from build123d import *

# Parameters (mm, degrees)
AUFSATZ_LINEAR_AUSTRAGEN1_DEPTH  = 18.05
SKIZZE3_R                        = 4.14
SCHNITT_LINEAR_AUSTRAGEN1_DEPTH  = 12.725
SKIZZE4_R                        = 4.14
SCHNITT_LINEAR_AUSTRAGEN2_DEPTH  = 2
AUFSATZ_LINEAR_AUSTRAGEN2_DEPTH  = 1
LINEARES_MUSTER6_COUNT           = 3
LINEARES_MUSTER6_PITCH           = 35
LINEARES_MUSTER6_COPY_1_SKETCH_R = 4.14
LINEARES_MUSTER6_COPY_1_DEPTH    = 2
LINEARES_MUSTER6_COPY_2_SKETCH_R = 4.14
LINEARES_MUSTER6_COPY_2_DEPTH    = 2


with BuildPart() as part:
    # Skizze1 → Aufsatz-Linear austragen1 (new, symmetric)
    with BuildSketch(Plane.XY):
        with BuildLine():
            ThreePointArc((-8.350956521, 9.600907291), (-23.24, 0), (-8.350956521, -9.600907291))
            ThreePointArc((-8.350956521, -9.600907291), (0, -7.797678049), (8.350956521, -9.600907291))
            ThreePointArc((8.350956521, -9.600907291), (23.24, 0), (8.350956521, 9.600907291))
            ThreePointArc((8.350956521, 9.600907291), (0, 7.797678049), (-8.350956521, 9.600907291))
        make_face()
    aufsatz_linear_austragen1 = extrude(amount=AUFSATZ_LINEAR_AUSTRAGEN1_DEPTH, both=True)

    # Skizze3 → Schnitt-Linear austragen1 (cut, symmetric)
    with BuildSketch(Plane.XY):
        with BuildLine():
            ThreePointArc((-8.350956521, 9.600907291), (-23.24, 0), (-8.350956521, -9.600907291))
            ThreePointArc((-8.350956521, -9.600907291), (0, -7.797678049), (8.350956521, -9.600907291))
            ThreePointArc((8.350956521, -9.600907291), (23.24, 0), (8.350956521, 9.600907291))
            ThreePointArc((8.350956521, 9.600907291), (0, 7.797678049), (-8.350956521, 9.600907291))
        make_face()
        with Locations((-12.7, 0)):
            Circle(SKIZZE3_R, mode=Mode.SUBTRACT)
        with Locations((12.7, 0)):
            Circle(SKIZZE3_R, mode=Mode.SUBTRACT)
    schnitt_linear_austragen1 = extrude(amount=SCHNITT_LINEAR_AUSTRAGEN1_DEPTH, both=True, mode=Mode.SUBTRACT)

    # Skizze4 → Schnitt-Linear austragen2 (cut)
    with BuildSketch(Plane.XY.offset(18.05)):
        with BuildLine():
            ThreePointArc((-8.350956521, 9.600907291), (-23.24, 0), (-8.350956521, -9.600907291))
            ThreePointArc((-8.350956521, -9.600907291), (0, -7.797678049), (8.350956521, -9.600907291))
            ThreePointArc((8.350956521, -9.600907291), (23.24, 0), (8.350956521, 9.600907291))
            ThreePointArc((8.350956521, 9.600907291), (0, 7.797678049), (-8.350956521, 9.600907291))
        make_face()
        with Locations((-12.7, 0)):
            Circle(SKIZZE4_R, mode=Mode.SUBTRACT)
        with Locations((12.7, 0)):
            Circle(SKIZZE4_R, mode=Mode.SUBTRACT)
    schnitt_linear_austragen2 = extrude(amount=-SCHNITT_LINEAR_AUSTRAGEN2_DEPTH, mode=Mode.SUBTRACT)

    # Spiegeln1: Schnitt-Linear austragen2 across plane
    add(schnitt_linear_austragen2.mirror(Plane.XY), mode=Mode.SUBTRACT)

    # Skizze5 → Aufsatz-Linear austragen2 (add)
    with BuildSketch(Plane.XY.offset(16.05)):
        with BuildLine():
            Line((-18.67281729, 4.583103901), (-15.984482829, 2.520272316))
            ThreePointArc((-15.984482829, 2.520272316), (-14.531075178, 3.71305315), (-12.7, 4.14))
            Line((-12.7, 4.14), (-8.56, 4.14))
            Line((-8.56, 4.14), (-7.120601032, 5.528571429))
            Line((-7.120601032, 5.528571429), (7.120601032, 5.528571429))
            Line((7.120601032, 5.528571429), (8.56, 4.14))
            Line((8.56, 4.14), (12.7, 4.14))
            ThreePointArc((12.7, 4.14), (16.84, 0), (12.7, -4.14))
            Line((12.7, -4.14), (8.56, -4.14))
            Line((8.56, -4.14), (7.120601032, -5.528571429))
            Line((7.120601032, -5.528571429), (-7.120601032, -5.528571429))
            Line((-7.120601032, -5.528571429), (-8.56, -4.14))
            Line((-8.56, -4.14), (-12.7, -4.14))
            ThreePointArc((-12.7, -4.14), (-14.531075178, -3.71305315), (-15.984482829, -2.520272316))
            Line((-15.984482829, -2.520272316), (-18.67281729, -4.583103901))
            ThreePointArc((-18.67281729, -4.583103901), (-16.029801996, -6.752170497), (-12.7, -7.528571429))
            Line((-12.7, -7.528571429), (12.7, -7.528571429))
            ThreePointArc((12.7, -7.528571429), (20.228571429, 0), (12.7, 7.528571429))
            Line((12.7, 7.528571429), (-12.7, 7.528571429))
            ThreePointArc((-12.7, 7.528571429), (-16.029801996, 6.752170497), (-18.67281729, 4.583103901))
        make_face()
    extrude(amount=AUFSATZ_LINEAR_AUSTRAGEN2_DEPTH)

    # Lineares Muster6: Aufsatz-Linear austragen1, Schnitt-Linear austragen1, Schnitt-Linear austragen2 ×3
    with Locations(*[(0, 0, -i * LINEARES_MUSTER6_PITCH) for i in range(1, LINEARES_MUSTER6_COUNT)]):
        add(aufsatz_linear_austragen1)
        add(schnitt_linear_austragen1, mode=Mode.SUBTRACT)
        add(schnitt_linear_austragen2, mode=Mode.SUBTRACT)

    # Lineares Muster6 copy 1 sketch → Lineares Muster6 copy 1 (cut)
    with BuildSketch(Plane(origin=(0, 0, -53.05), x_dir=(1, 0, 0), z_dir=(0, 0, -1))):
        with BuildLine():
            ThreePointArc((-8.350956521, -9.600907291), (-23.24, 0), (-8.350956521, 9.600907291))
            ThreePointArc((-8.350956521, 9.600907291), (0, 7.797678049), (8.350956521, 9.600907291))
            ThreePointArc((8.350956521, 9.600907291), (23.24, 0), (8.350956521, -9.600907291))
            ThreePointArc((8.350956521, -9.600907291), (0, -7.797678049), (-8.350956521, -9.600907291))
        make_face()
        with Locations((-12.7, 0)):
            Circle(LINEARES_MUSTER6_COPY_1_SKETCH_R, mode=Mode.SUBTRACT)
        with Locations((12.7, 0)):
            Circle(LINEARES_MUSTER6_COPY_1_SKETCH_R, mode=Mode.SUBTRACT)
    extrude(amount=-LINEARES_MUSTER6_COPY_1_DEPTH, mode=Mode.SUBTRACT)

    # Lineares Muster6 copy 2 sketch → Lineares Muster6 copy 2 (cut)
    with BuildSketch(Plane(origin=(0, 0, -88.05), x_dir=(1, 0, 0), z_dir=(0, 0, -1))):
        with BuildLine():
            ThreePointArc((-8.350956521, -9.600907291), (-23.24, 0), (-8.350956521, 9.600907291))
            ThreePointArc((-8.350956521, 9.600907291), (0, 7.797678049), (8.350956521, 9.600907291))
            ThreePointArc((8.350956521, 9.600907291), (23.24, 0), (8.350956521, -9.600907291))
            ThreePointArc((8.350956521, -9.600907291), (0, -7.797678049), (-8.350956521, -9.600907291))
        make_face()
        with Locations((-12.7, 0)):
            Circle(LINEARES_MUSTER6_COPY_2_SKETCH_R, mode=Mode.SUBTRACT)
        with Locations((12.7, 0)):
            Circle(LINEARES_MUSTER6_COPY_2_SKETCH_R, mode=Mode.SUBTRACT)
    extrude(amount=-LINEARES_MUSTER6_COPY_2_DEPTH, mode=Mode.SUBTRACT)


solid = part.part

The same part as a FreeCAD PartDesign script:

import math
import FreeCAD as App
import Part
import Sketcher

V = App.Vector
Q = App.Units.Quantity

doc = App.newDocument("Part")
body = doc.addObject("PartDesign::Body", "Body")

# Sketch on XY plane
sketch1 = doc.addObject("Sketcher::SketchObject", "Sketch")
body.addObject(sketch1)
sketch1.AttachmentSupport = (doc.XY_Plane, [""])
sketch1.MapMode = "FlatFace"
sketch1.addGeometry(Part.ArcOfCircle(Part.Circle(V(-12.7, 0, 0), V(0, 0, 1), 10.54), math.radians(65.630303), math.radians(294.369697)), False)
sketch1.addGeometry(Part.ArcOfCircle(Part.Circle(V(0, -28.0364, 0), V(0, 0, 1), 20.238722), math.radians(65.630303), math.radians(114.369697)), False)
sketch1.addGeometry(Part.ArcOfCircle(Part.Circle(V(12.7, 0, 0), V(0, 0, 1), 10.54), math.radians(-114.369697), math.radians(114.369697)), False)
sketch1.addGeometry(Part.ArcOfCircle(Part.Circle(V(0, 28.0364, 0), V(0, 0, 1), 20.238722), math.radians(-114.369697), math.radians(-65.630303)), False)
sketch1.addConstraint(Sketcher.Constraint("Tangent", 0, 2, 1, 2))
sketch1.addConstraint(Sketcher.Constraint("Tangent", 1, 1, 2, 1))
sketch1.addConstraint(Sketcher.Constraint("Tangent", 2, 2, 3, 2))
sketch1.addConstraint(Sketcher.Constraint("Tangent", 3, 1, 0, 1))
sketch1.addConstraint(Sketcher.Constraint("Equal", 0, 2))
sketch1.addConstraint(Sketcher.Constraint("Equal", 1, 3))
sketch1.addConstraint(Sketcher.Constraint("Symmetric", 0, 3, 2, 3, -1, 1))
sketch1.addConstraint(Sketcher.Constraint("PointOnObject", 0, 3, -1))
sketch1.addConstraint(Sketcher.Constraint("Radius", 0, Q("10.54 mm")))
sketch1.addConstraint(Sketcher.Constraint("DistanceX", 0, 3, -1, 1, Q("12.7 mm")))
sketch1.addConstraint(Sketcher.Constraint("Radius", 1, Q("20.238722 mm")))
pad1 = doc.addObject("PartDesign::Pad", "Pad")
body.addObject(pad1)
pad1.Profile = sketch1
pad1.Length = 36.1
pad1.Midplane = True

# Sketch on XY plane
sketch2 = doc.addObject("Sketcher::SketchObject", "Sketch001")
body.addObject(sketch2)
sketch2.AttachmentSupport = (doc.XY_Plane, [""])
sketch2.MapMode = "FlatFace"
sketch2.addGeometry(Part.ArcOfCircle(Part.Circle(V(-12.7, 0, 0), V(0, 0, 1), 10.54), math.radians(65.630303), math.radians(294.369697)), False)
sketch2.addGeometry(Part.ArcOfCircle(Part.Circle(V(0, -28.0364, 0), V(0, 0, 1), 20.238722), math.radians(65.630303), math.radians(114.369697)), False)
sketch2.addGeometry(Part.ArcOfCircle(Part.Circle(V(12.7, 0, 0), V(0, 0, 1), 10.54), math.radians(-114.369697), math.radians(114.369697)), False)
sketch2.addGeometry(Part.ArcOfCircle(Part.Circle(V(0, 28.0364, 0), V(0, 0, 1), 20.238722), math.radians(-114.369697), math.radians(-65.630303)), False)
sketch2.addGeometry(Part.Circle(V(-12.7, 0, 0), V(0, 0, 1), 4.14), False)
sketch2.addGeometry(Part.Circle(V(12.7, 0, 0), V(0, 0, 1), 4.14), False)
sketch2.addConstraint(Sketcher.Constraint("Tangent", 0, 2, 1, 2))
sketch2.addConstraint(Sketcher.Constraint("Tangent", 1, 1, 2, 1))
sketch2.addConstraint(Sketcher.Constraint("Tangent", 2, 2, 3, 2))
sketch2.addConstraint(Sketcher.Constraint("Tangent", 3, 1, 0, 1))
sketch2.addConstraint(Sketcher.Constraint("Coincident", 4, 3, 0, 3))
sketch2.addConstraint(Sketcher.Constraint("Coincident", 5, 3, 2, 3))
sketch2.addConstraint(Sketcher.Constraint("Equal", 0, 2))
sketch2.addConstraint(Sketcher.Constraint("Equal", 1, 3))
sketch2.addConstraint(Sketcher.Constraint("Equal", 4, 5))
sketch2.addConstraint(Sketcher.Constraint("Symmetric", 0, 3, 2, 3, -1, 1))
sketch2.addConstraint(Sketcher.Constraint("PointOnObject", 0, 3, -1))
sketch2.addConstraint(Sketcher.Constraint("Diameter", 4, Q("8.28 mm")))
sketch2.addConstraint(Sketcher.Constraint("Radius", 0, Q("10.54 mm")))
sketch2.addConstraint(Sketcher.Constraint("DistanceX", 0, 3, -1, 1, Q("12.7 mm")))
sketch2.addConstraint(Sketcher.Constraint("Radius", 1, Q("20.238722 mm")))
pocket1 = doc.addObject("PartDesign::Pocket", "Pocket")
body.addObject(pocket1)
pocket1.Profile = sketch2
pocket1.Length = 25.45
pocket1.Midplane = True

# Sketch on XY plane
sketch3 = doc.addObject("Sketcher::SketchObject", "Sketch002")
body.addObject(sketch3)
sketch3.AttachmentSupport = (doc.XY_Plane, [""])
sketch3.MapMode = "FlatFace"
sketch3.AttachmentOffset = App.Placement(V(0, 0, 18.05), App.Rotation())
sketch3.addGeometry(Part.ArcOfCircle(Part.Circle(V(-12.7, 0, 0), V(0, 0, 1), 10.54), math.radians(65.630303), math.radians(294.369697)), False)
sketch3.addGeometry(Part.ArcOfCircle(Part.Circle(V(0, -28.0364, 0), V(0, 0, 1), 20.238722), math.radians(65.630303), math.radians(114.369697)), False)
sketch3.addGeometry(Part.ArcOfCircle(Part.Circle(V(12.7, 0, 0), V(0, 0, 1), 10.54), math.radians(-114.369697), math.radians(114.369697)), False)
sketch3.addGeometry(Part.ArcOfCircle(Part.Circle(V(0, 28.0364, 0), V(0, 0, 1), 20.238722), math.radians(-114.369697), math.radians(-65.630303)), False)
sketch3.addGeometry(Part.Circle(V(-12.7, 0, 0), V(0, 0, 1), 4.14), False)
sketch3.addGeometry(Part.Circle(V(12.7, 0, 0), V(0, 0, 1), 4.14), False)
sketch3.addConstraint(Sketcher.Constraint("Tangent", 0, 2, 1, 2))
sketch3.addConstraint(Sketcher.Constraint("Tangent", 1, 1, 2, 1))
sketch3.addConstraint(Sketcher.Constraint("Tangent", 2, 2, 3, 2))
sketch3.addConstraint(Sketcher.Constraint("Tangent", 3, 1, 0, 1))
sketch3.addConstraint(Sketcher.Constraint("Coincident", 4, 3, 0, 3))
sketch3.addConstraint(Sketcher.Constraint("Coincident", 5, 3, 2, 3))
sketch3.addConstraint(Sketcher.Constraint("Equal", 0, 2))
sketch3.addConstraint(Sketcher.Constraint("Equal", 1, 3))
sketch3.addConstraint(Sketcher.Constraint("Equal", 4, 5))
sketch3.addConstraint(Sketcher.Constraint("Symmetric", 0, 3, 2, 3, -1, 1))
sketch3.addConstraint(Sketcher.Constraint("PointOnObject", 0, 3, -1))
sketch3.addConstraint(Sketcher.Constraint("Diameter", 4, Q("8.28 mm")))
sketch3.addConstraint(Sketcher.Constraint("Radius", 0, Q("10.54 mm")))
sketch3.addConstraint(Sketcher.Constraint("DistanceX", 0, 3, -1, 1, Q("12.7 mm")))
sketch3.addConstraint(Sketcher.Constraint("Radius", 1, Q("20.238722 mm")))
pocket2 = doc.addObject("PartDesign::Pocket", "Pocket001")
body.addObject(pocket2)
pocket2.Profile = sketch3
pocket2.Length = 2
doc.recompute()

mirrored = doc.addObject("PartDesign::Mirrored", "Mirrored")
body.addObject(mirrored)
mirrored.Originals = [pocket2]
mirrored.MirrorPlane = (doc.XY_Plane, [""])
body.Tip = mirrored

# Sketch on XY plane
sketch4 = doc.addObject("Sketcher::SketchObject", "Sketch003")
body.addObject(sketch4)
sketch4.AttachmentSupport = (doc.XY_Plane, [""])
sketch4.MapMode = "FlatFace"
sketch4.AttachmentOffset = App.Placement(V(0, 0, 16.05), App.Rotation())
sketch4.addGeometry(Part.LineSegment(V(-18.672817, 4.583104, 0), V(-15.984483, 2.520272, 0)), False)
sketch4.addGeometry(Part.ArcOfCircle(Part.Circle(V(-12.7, 0, 0), V(0, 0, 1), 4.14), math.radians(90), math.radians(142.5)), False)
sketch4.addGeometry(Part.LineSegment(V(-12.7, 4.14, 0), V(-8.56, 4.14, 0)), False)
sketch4.addGeometry(Part.LineSegment(V(-8.56, 4.14, 0), V(-7.120601, 5.528571, 0)), False)
sketch4.addGeometry(Part.LineSegment(V(-7.120601, 5.528571, 0), V(7.120601, 5.528571, 0)), False)
sketch4.addGeometry(Part.LineSegment(V(7.120601, 5.528571, 0), V(8.56, 4.14, 0)), False)
sketch4.addGeometry(Part.LineSegment(V(8.56, 4.14, 0), V(12.7, 4.14, 0)), False)
sketch4.addGeometry(Part.ArcOfCircle(Part.Circle(V(12.7, 0, 0), V(0, 0, 1), 4.14), math.radians(-90), math.radians(90)), False)
sketch4.addGeometry(Part.LineSegment(V(12.7, -4.14, 0), V(8.56, -4.14, 0)), False)
sketch4.addGeometry(Part.LineSegment(V(8.56, -4.14, 0), V(7.120601, -5.528571, 0)), False)
sketch4.addGeometry(Part.LineSegment(V(7.120601, -5.528571, 0), V(-7.120601, -5.528571, 0)), False)
sketch4.addGeometry(Part.LineSegment(V(-7.120601, -5.528571, 0), V(-8.56, -4.14, 0)), False)
sketch4.addGeometry(Part.LineSegment(V(-8.56, -4.14, 0), V(-12.7, -4.14, 0)), False)
sketch4.addGeometry(Part.ArcOfCircle(Part.Circle(V(-12.7, 0, 0), V(0, 0, 1), 4.14), math.radians(-142.5), math.radians(-90)), False)
sketch4.addGeometry(Part.LineSegment(V(-15.984483, -2.520272, 0), V(-18.672817, -4.583104, 0)), False)
sketch4.addGeometry(Part.ArcOfCircle(Part.Circle(V(-12.7, 0, 0), V(0, 0, 1), 7.528571), math.radians(-142.5), math.radians(-90)), False)
sketch4.addGeometry(Part.LineSegment(V(-12.7, -7.528571, 0), V(12.7, -7.528571, 0)), False)
sketch4.addGeometry(Part.ArcOfCircle(Part.Circle(V(12.7, 0, 0), V(0, 0, 1), 7.528571), math.radians(-90), math.radians(90)), False)
sketch4.addGeometry(Part.LineSegment(V(12.7, 7.528571, 0), V(-12.7, 7.528571, 0)), False)
sketch4.addGeometry(Part.ArcOfCircle(Part.Circle(V(-12.7, 0, 0), V(0, 0, 1), 7.528571), math.radians(90), math.radians(142.5)), False)
sketch4.addConstraint(Sketcher.Constraint("Coincident", 0, 2, 1, 2))
sketch4.addConstraint(Sketcher.Constraint("Tangent", 1, 1, 2, 1))
sketch4.addConstraint(Sketcher.Constraint("Coincident", 2, 2, 3, 1))
sketch4.addConstraint(Sketcher.Constraint("Coincident", 3, 2, 4, 1))
sketch4.addConstraint(Sketcher.Constraint("Coincident", 4, 2, 5, 1))
sketch4.addConstraint(Sketcher.Constraint("Coincident", 5, 2, 6, 1))
sketch4.addConstraint(Sketcher.Constraint("Tangent", 6, 2, 7, 2))
sketch4.addConstraint(Sketcher.Constraint("Tangent", 7, 1, 8, 1))
sketch4.addConstraint(Sketcher.Constraint("Coincident", 8, 2, 9, 1))
sketch4.addConstraint(Sketcher.Constraint("Coincident", 9, 2, 10, 1))
sketch4.addConstraint(Sketcher.Constraint("Coincident", 10, 2, 11, 1))
sketch4.addConstraint(Sketcher.Constraint("Coincident", 11, 2, 12, 1))
sketch4.addConstraint(Sketcher.Constraint("Tangent", 12, 2, 13, 2))
sketch4.addConstraint(Sketcher.Constraint("Coincident", 13, 1, 14, 1))
sketch4.addConstraint(Sketcher.Constraint("Coincident", 14, 2, 15, 1))
sketch4.addConstraint(Sketcher.Constraint("Tangent", 15, 2, 16, 1))
sketch4.addConstraint(Sketcher.Constraint("Tangent", 16, 2, 17, 1))
sketch4.addConstraint(Sketcher.Constraint("Tangent", 17, 2, 18, 1))
sketch4.addConstraint(Sketcher.Constraint("Tangent", 18, 2, 19, 1))
sketch4.addConstraint(Sketcher.Constraint("Coincident", 19, 2, 0, 1))
sketch4.addConstraint(Sketcher.Constraint("Horizontal", 2))
sketch4.addConstraint(Sketcher.Constraint("Horizontal", 4))
sketch4.addConstraint(Sketcher.Constraint("Horizontal", 6))
sketch4.addConstraint(Sketcher.Constraint("Horizontal", 8))
sketch4.addConstraint(Sketcher.Constraint("Horizontal", 10))
sketch4.addConstraint(Sketcher.Constraint("Horizontal", 12))
sketch4.addConstraint(Sketcher.Constraint("Horizontal", 16))
sketch4.addConstraint(Sketcher.Constraint("Horizontal", 18))
sketch4.addConstraint(Sketcher.Constraint("Coincident", 13, 3, 1, 3))
sketch4.addConstraint(Sketcher.Constraint("Coincident", 15, 3, 1, 3))
sketch4.addConstraint(Sketcher.Constraint("Coincident", 17, 3, 7, 3))
sketch4.addConstraint(Sketcher.Constraint("Coincident", 19, 3, 1, 3))
sketch4.addConstraint(Sketcher.Constraint("Equal", 1, 7))
sketch4.addConstraint(Sketcher.Constraint("Equal", 7, 13))
sketch4.addConstraint(Sketcher.Constraint("Equal", 15, 17))
sketch4.addConstraint(Sketcher.Constraint("Symmetric", 1, 3, 7, 3, -1, 1))
sketch4.addConstraint(Sketcher.Constraint("Symmetric", 3, 2, 9, 2, -1, 1))
sketch4.addConstraint(Sketcher.Constraint("Parallel", 3, 9))
sketch4.addConstraint(Sketcher.Constraint("Parallel", 5, 11))
sketch4.addConstraint(Sketcher.Constraint("Vertical", 5, 2, 8, 2))
sketch4.addConstraint(Sketcher.Constraint("Vertical", 4, 2, 9, 2))
sketch4.addConstraint(Sketcher.Constraint("Vertical", 3, 2, 10, 2))
sketch4.addConstraint(Sketcher.Constraint("Vertical", 0, 2, 13, 1))
sketch4.addConstraint(Sketcher.Constraint("Vertical", 14, 2, 19, 2))
sketch4.addConstraint(Sketcher.Constraint("Radius", 1, Q("4.14 mm")))
sketch4.addConstraint(Sketcher.Constraint("Distance", 3, Q("2 mm")))
sketch4.addConstraint(Sketcher.Constraint("DistanceX", 16, 1, 16, 2, Q("25.4 mm")))
sketch4.addConstraint(Sketcher.Constraint("Angle", 0, Q("-37.5 deg")))
sketch4.addConstraint(Sketcher.Constraint("DistanceY", 15, 2, 10, 2, Q("2 mm")))
sketch4.addConstraint(Sketcher.Constraint("DistanceX", 2, 1, 2, 2, Q("4.14 mm")))
sketch4.addConstraint(Sketcher.Constraint("Radius", 15, Q("7.528571 mm")))
sketch4.addConstraint(Sketcher.Constraint("DistanceY", 15, 2, 13, 1, Q("5.008299 mm")))
pad2 = doc.addObject("PartDesign::Pad", "Pad001")
body.addObject(pad2)
pad2.Profile = sketch4
pad2.Length = 1
doc.recompute()

linearpattern = doc.addObject("PartDesign::LinearPattern", "LinearPattern")
body.addObject(linearpattern)
linearpattern.Originals = [pad1, pocket1, pocket2]
linearpattern.Direction = (doc.Z_Axis, [""])
linearpattern.Mode = "offset"
linearpattern.Offset = 35
linearpattern.Occurrences = 3
linearpattern.Reversed = True
body.Tip = linearpattern

# Sketch on XY plane
sketch5 = doc.addObject("Sketcher::SketchObject", "Sketch004")
body.addObject(sketch5)
sketch5.AttachmentSupport = (doc.XY_Plane, [""])
sketch5.MapMode = "FlatFace"
sketch5.AttachmentOffset = App.Placement(V(0, 0, -53.05), App.Rotation())
sketch5.addGeometry(Part.ArcOfCircle(Part.Circle(V(-12.7, 0, 0), V(0, 0, 1), 10.54), math.radians(65.630303), math.radians(294.369697)), False)
sketch5.addGeometry(Part.ArcOfCircle(Part.Circle(V(0, 28.0364, 0), V(0, 0, 1), 20.238722), math.radians(-114.369697), math.radians(-65.630303)), False)
sketch5.addGeometry(Part.ArcOfCircle(Part.Circle(V(12.7, 0, 0), V(0, 0, 1), 10.54), math.radians(-114.369697), math.radians(114.369697)), False)
sketch5.addGeometry(Part.ArcOfCircle(Part.Circle(V(0, -28.0364, 0), V(0, 0, 1), 20.238722), math.radians(65.630303), math.radians(114.369697)), False)
sketch5.addGeometry(Part.Circle(V(12.7, 0, 0), V(0, 0, 1), 4.14), False)
sketch5.addGeometry(Part.Circle(V(-12.7, 0, 0), V(0, 0, 1), 4.14), False)
sketch5.addConstraint(Sketcher.Constraint("Tangent", 0, 1, 1, 1))
sketch5.addConstraint(Sketcher.Constraint("Tangent", 1, 2, 2, 2))
sketch5.addConstraint(Sketcher.Constraint("Tangent", 2, 1, 3, 1))
sketch5.addConstraint(Sketcher.Constraint("Tangent", 3, 2, 0, 2))
sketch5.addConstraint(Sketcher.Constraint("Coincident", 4, 3, 2, 3))
sketch5.addConstraint(Sketcher.Constraint("Coincident", 5, 3, 0, 3))
sketch5.addConstraint(Sketcher.Constraint("Equal", 0, 2))
sketch5.addConstraint(Sketcher.Constraint("Equal", 1, 3))
sketch5.addConstraint(Sketcher.Constraint("Equal", 4, 5))
sketch5.addConstraint(Sketcher.Constraint("Symmetric", 0, 3, 2, 3, -1, 1))
sketch5.addConstraint(Sketcher.Constraint("PointOnObject", 0, 3, -1))
sketch5.addConstraint(Sketcher.Constraint("Diameter", 4, Q("8.28 mm")))
sketch5.addConstraint(Sketcher.Constraint("Radius", 0, Q("10.54 mm")))
sketch5.addConstraint(Sketcher.Constraint("DistanceX", 0, 3, -1, 1, Q("12.7 mm")))
sketch5.addConstraint(Sketcher.Constraint("Radius", 1, Q("20.238722 mm")))
pocket3 = doc.addObject("PartDesign::Pocket", "Pocket002")
body.addObject(pocket3)
pocket3.Profile = sketch5
pocket3.Length = 2
pocket3.Reversed = True

# Sketch on XY plane
sketch6 = doc.addObject("Sketcher::SketchObject", "Sketch005")
body.addObject(sketch6)
sketch6.AttachmentSupport = (doc.XY_Plane, [""])
sketch6.MapMode = "FlatFace"
sketch6.AttachmentOffset = App.Placement(V(0, 0, -88.05), App.Rotation())
sketch6.addGeometry(Part.ArcOfCircle(Part.Circle(V(-12.7, 0, 0), V(0, 0, 1), 10.54), math.radians(65.630303), math.radians(294.369697)), False)
sketch6.addGeometry(Part.ArcOfCircle(Part.Circle(V(0, 28.0364, 0), V(0, 0, 1), 20.238722), math.radians(-114.369697), math.radians(-65.630303)), False)
sketch6.addGeometry(Part.ArcOfCircle(Part.Circle(V(12.7, 0, 0), V(0, 0, 1), 10.54), math.radians(-114.369697), math.radians(114.369697)), False)
sketch6.addGeometry(Part.ArcOfCircle(Part.Circle(V(0, -28.0364, 0), V(0, 0, 1), 20.238722), math.radians(65.630303), math.radians(114.369697)), False)
sketch6.addGeometry(Part.Circle(V(12.7, 0, 0), V(0, 0, 1), 4.14), False)
sketch6.addGeometry(Part.Circle(V(-12.7, 0, 0), V(0, 0, 1), 4.14), False)
sketch6.addConstraint(Sketcher.Constraint("Tangent", 0, 1, 1, 1))
sketch6.addConstraint(Sketcher.Constraint("Tangent", 1, 2, 2, 2))
sketch6.addConstraint(Sketcher.Constraint("Tangent", 2, 1, 3, 1))
sketch6.addConstraint(Sketcher.Constraint("Tangent", 3, 2, 0, 2))
sketch6.addConstraint(Sketcher.Constraint("Coincident", 4, 3, 2, 3))
sketch6.addConstraint(Sketcher.Constraint("Coincident", 5, 3, 0, 3))
sketch6.addConstraint(Sketcher.Constraint("Equal", 0, 2))
sketch6.addConstraint(Sketcher.Constraint("Equal", 1, 3))
sketch6.addConstraint(Sketcher.Constraint("Equal", 4, 5))
sketch6.addConstraint(Sketcher.Constraint("Symmetric", 0, 3, 2, 3, -1, 1))
sketch6.addConstraint(Sketcher.Constraint("PointOnObject", 0, 3, -1))
sketch6.addConstraint(Sketcher.Constraint("Diameter", 4, Q("8.28 mm")))
sketch6.addConstraint(Sketcher.Constraint("Radius", 0, Q("10.54 mm")))
sketch6.addConstraint(Sketcher.Constraint("DistanceX", 0, 3, -1, 1, Q("12.7 mm")))
sketch6.addConstraint(Sketcher.Constraint("Radius", 1, Q("20.238722 mm")))
pocket4 = doc.addObject("PartDesign::Pocket", "Pocket003")
body.addObject(pocket4)
pocket4.Profile = sketch6
pocket4.Length = 2
pocket4.Reversed = True

doc.recompute()
